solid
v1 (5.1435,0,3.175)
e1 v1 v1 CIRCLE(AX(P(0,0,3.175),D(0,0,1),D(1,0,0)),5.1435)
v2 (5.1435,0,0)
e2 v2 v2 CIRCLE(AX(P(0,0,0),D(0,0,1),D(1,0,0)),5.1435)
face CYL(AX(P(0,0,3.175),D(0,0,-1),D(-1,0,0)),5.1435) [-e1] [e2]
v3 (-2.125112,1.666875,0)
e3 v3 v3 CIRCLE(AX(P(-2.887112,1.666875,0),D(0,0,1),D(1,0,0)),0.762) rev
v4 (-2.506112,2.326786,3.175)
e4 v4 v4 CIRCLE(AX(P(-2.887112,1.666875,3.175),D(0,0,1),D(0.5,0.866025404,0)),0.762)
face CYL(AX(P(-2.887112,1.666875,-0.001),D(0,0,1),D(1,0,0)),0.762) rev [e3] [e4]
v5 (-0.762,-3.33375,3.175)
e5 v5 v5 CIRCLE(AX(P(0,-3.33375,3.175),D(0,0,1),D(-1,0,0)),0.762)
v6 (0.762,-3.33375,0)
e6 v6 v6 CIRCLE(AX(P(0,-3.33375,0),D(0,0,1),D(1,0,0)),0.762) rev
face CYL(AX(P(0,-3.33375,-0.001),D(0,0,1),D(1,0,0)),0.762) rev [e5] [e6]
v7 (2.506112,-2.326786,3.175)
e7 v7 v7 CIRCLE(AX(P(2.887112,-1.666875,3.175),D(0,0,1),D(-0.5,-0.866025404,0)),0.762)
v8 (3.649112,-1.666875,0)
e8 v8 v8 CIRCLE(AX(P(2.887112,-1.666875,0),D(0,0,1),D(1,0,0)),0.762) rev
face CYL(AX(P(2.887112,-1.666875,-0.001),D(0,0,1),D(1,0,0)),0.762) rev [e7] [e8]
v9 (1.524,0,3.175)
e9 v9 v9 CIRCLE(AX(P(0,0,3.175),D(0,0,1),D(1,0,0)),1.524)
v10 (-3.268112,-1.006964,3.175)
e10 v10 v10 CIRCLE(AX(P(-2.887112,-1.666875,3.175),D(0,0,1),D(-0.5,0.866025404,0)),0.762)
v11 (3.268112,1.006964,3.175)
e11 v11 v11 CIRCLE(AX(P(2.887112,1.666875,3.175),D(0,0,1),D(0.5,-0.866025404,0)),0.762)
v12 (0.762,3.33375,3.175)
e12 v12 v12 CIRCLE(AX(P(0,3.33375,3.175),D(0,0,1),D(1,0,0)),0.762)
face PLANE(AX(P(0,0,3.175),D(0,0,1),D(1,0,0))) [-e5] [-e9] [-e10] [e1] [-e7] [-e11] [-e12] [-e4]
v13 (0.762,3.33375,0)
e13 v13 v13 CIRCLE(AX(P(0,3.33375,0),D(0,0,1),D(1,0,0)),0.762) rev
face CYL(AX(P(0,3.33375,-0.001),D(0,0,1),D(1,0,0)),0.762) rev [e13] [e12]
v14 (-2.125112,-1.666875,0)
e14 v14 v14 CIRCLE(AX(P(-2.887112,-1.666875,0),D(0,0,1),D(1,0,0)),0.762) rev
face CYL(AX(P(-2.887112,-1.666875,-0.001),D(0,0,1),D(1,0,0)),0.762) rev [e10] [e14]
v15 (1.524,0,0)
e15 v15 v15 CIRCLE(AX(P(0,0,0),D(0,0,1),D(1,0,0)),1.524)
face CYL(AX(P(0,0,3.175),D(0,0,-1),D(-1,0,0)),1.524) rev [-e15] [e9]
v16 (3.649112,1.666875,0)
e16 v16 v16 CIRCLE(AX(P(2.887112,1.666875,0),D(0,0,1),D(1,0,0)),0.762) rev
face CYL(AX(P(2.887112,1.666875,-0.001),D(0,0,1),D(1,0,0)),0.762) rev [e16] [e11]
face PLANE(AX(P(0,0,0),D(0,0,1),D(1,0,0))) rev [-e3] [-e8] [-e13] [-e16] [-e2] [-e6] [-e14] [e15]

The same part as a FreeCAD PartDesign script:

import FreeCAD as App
import Part
import Sketcher

V = App.Vector
Q = App.Units.Quantity

doc = App.newDocument("Part")
params = doc.addObject("Spreadsheet::Sheet", "Params")
for row, (alias, value) in enumerate([
    ("sketch1_diameter", "0.12 in"),
    ("sketch1_diameter2", "0.405 in"),
    ("pad1_length", "0.125 in"),
    ("sketch2_diameter", "0.06 in"),
    ("pocket1_length", "0.125 in"),
], start=1):
    params.set(f"A{row}", alias)
    params.set(f"B{row}", "=" + value)
    params.setAlias(f"B{row}", alias)

body = doc.addObject("PartDesign::Body", "Body")

sketch1 = body.newObject("Sketcher::SketchObject", "Sketch")
sketch1.AttachmentSupport = (doc.getObject("XY_Plane"), [""])
sketch1.MapMode = "FlatFace"
sketch1.addGeometry([
    Part.Circle(V(0, 0, 0), V(0, 0, 1), 5.1),
    Part.Circle(V(0, 0, 0), V(0, 0, 1), 1.5),
], False)
sketch1.addConstraint([
    Sketcher.Constraint("Coincident", 0, 3, -1, 1),
    Sketcher.Constraint("Coincident", 1, 3, -1, 1),
    Sketcher.Constraint("Diameter", 1, Q("0.12 in")),
    Sketcher.Constraint("Diameter", 0, Q("0.405 in")),
])
sketch1.setExpression("Constraints[2]", "Params.sketch1_diameter")
sketch1.setExpression("Constraints[3]", "Params.sketch1_diameter2")
pad1 = body.newObject("PartDesign::Pad", "Pad")
pad1.Profile = sketch1
pad1.setExpression("Length", "Params.pad1_length")

sketch2 = body.newObject("Sketcher::SketchObject", "Sketch001")
sketch2.AttachmentSupport = (doc.getObject("XY_Plane"), [""])
sketch2.MapMode = "FlatFace"
sketch2.AttachmentOffset = App.Placement(V(0, 0, 0.125 * 25.4), App.Rotation())
sketch2.addGeometry(Part.Circle(V(0, 3.3, 0), V(0, 0, 1), 0.8), False)
sketch2.addConstraint([
    Sketcher.Constraint("PointOnObject", 0, 3, -2),
    Sketcher.Constraint("Diameter", 0, Q("0.06 in")),
    Sketcher.Constraint("DistanceY", -1, 1, 0, 3, Q("3.33375 mm")),
])
sketch2.setExpression("Constraints[1]", "Params.sketch2_diameter")
pocket1 = body.newObject("PartDesign::Pocket", "Pocket")
pocket1.Profile = sketch2
pocket1.setExpression("Length", "Params.pocket1_length")
doc.recompute()

polarpattern = body.newObject("PartDesign::PolarPattern", "PolarPattern")
polarpattern.Originals = [pocket1]
polarpattern.Axis = (doc.getObject("Z_Axis"), [""])
polarpattern.Angle = 360
polarpattern.Occurrences = 6
body.Tip = polarpattern

doc.recompute()
